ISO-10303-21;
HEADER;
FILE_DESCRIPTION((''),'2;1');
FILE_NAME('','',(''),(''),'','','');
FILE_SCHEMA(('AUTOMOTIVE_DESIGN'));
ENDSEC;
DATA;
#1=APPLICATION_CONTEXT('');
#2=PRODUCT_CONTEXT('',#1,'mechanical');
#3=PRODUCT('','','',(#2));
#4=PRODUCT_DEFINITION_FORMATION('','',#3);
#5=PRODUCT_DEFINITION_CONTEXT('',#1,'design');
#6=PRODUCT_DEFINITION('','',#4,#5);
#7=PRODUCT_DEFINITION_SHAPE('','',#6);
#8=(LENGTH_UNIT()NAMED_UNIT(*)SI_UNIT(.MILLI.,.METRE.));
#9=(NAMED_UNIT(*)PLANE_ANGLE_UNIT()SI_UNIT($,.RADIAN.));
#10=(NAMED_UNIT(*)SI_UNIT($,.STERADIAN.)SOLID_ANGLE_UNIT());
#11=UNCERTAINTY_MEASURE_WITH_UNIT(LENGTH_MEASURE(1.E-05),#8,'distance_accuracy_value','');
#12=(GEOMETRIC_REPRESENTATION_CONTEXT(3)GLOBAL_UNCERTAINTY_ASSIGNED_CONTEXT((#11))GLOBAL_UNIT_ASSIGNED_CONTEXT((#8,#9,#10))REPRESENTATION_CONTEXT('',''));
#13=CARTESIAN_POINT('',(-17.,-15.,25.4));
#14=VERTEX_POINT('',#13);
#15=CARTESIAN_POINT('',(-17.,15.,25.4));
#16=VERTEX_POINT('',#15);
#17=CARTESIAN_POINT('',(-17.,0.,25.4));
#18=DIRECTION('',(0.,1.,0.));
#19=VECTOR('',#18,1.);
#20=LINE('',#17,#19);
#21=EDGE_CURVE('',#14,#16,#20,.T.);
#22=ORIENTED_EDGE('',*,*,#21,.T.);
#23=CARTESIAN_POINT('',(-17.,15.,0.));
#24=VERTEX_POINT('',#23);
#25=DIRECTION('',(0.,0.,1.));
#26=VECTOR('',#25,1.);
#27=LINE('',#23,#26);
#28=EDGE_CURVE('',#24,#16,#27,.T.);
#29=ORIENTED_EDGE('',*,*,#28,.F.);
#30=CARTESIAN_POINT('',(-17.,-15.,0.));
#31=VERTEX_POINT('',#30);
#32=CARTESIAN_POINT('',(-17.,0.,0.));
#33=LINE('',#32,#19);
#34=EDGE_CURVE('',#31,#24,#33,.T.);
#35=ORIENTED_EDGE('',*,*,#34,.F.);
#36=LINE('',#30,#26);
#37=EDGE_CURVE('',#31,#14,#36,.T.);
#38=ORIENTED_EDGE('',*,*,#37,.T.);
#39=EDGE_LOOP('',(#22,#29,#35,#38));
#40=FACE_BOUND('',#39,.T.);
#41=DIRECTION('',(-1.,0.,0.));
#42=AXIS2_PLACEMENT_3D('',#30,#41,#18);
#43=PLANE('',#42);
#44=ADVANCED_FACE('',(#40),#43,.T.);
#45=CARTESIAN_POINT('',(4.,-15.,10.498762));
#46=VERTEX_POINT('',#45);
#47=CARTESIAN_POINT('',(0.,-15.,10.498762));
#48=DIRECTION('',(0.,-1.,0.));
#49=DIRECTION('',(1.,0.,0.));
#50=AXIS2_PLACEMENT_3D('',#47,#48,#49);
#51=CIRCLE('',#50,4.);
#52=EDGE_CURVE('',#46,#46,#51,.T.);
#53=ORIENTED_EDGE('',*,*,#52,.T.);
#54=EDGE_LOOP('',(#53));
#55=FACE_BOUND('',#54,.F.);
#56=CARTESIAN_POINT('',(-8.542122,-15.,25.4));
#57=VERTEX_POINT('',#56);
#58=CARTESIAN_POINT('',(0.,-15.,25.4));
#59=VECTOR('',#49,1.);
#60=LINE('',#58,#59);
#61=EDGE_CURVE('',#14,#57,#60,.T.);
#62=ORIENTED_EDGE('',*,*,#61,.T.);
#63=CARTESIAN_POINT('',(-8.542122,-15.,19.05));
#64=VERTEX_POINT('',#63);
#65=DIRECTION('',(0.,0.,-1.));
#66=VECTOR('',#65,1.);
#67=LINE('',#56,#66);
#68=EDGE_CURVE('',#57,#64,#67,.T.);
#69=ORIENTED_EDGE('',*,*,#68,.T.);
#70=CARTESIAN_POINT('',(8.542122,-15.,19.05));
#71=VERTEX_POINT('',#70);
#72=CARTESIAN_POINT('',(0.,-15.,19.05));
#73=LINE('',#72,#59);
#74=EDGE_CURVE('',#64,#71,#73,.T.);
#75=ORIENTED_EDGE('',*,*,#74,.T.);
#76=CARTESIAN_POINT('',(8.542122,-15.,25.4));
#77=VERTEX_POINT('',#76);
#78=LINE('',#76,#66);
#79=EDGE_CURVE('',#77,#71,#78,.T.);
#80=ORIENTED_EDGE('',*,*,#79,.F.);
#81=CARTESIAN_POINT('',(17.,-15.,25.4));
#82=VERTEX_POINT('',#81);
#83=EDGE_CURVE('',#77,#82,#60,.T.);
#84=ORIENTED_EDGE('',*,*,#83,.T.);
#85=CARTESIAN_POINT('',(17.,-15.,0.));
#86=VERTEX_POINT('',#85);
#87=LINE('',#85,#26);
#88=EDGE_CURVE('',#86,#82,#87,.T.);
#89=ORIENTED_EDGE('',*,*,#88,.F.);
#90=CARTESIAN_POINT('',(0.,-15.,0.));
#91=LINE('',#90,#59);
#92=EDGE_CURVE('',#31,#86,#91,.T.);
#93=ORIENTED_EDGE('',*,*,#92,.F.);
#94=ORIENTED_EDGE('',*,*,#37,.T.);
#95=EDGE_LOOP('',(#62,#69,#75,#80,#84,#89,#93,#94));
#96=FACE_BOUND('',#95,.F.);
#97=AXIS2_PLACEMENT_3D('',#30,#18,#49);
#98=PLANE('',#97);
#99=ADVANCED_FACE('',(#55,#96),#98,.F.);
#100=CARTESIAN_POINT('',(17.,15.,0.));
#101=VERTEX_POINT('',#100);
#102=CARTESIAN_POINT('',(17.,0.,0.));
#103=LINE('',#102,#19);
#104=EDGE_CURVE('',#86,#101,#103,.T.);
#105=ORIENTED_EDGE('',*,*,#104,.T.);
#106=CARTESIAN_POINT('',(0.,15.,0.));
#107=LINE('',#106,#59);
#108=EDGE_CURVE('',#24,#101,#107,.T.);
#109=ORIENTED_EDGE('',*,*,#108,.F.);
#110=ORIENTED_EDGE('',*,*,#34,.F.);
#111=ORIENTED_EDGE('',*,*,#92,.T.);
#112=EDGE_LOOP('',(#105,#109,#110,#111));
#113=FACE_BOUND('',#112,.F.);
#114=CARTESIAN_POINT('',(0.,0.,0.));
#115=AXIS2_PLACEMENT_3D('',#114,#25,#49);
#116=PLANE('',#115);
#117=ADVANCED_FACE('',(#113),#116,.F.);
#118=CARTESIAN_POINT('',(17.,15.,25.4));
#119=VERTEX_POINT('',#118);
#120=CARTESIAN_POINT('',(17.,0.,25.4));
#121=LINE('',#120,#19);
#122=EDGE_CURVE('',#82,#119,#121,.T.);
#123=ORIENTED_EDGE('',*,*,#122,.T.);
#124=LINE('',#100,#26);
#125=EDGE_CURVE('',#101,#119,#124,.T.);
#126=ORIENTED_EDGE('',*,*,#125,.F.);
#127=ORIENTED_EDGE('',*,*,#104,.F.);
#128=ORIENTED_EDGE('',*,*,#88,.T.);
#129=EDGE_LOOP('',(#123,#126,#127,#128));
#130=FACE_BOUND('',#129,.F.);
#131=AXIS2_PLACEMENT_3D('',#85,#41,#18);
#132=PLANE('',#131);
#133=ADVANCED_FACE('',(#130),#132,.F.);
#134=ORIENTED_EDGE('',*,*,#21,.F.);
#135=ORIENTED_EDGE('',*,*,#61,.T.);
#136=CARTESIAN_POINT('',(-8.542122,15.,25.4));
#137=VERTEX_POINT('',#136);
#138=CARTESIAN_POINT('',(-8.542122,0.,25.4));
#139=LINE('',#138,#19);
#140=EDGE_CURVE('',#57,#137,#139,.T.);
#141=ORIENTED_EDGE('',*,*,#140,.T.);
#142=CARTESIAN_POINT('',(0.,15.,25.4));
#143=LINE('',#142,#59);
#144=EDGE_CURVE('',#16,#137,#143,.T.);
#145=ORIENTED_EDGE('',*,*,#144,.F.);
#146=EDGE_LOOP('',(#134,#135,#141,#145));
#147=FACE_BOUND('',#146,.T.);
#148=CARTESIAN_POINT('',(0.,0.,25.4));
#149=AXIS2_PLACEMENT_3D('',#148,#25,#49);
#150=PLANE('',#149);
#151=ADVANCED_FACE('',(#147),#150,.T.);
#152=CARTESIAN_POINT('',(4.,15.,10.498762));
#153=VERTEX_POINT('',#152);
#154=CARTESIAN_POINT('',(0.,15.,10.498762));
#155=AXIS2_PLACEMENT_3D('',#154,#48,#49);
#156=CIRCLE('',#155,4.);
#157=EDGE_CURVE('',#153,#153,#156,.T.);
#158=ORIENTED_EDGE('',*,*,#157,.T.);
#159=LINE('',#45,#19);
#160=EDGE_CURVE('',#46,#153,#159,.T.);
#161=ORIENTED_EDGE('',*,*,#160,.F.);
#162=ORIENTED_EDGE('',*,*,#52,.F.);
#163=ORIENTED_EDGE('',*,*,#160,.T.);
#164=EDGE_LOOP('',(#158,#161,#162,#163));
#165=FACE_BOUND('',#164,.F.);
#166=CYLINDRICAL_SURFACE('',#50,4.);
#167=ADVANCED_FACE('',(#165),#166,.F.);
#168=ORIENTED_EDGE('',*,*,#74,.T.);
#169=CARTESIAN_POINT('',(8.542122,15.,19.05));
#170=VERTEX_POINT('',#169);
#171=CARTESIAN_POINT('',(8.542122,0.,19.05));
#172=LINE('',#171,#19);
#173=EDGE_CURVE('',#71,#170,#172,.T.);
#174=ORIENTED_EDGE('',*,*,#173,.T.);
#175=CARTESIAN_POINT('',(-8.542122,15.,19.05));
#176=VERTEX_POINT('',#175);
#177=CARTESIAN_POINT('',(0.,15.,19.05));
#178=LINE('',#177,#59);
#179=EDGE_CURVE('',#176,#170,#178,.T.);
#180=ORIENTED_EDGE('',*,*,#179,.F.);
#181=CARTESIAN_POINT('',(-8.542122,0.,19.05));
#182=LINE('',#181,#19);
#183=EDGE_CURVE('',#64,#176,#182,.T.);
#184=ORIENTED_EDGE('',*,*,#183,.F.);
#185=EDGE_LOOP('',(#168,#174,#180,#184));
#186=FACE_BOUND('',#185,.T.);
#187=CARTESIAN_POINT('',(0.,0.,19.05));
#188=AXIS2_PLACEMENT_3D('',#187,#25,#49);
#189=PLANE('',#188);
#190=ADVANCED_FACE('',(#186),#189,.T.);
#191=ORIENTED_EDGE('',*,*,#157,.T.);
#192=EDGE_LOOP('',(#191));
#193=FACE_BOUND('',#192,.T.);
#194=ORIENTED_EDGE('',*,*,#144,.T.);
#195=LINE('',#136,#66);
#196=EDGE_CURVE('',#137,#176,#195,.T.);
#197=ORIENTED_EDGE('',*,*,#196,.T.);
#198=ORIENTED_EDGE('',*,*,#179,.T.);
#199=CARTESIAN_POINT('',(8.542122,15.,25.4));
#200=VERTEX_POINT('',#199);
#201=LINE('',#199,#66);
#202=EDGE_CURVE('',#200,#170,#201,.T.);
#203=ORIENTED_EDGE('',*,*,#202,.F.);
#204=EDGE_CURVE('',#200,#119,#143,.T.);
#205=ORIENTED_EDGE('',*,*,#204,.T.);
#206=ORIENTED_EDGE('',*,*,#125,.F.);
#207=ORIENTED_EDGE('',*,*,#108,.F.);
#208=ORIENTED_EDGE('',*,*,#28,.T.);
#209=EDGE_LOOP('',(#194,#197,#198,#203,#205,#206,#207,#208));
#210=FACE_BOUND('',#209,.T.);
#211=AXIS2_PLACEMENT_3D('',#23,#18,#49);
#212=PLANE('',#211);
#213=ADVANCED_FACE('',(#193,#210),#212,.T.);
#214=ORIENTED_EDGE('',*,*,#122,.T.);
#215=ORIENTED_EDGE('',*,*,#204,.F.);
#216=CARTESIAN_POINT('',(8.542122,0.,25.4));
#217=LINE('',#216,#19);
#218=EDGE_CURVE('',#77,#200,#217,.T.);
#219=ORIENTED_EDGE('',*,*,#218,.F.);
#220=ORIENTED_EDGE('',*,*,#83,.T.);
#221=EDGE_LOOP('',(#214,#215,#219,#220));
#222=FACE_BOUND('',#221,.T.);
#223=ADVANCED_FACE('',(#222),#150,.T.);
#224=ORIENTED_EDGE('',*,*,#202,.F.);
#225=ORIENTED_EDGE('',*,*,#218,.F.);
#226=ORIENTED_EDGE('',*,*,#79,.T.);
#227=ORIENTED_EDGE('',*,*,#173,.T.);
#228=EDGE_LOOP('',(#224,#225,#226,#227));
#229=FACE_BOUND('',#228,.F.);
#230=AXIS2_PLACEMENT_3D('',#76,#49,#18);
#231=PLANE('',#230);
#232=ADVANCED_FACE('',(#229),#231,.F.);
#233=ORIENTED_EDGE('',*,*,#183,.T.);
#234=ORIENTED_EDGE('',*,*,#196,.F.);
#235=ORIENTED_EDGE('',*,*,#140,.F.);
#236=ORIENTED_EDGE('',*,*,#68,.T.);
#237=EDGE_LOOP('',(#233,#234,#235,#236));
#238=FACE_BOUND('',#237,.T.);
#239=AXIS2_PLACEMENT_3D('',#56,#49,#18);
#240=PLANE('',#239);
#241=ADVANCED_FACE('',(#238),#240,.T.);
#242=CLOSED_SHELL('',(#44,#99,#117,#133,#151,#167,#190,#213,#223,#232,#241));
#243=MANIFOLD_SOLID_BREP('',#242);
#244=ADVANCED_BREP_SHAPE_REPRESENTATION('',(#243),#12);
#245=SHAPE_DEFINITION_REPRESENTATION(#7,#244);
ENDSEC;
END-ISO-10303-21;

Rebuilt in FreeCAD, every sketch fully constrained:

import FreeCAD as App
import Part
import Sketcher
from FreeCAD import Vector


def add_polygon(sketch, points):
    """Adds a closed chain of lines whose ends are joined by coincident constraints."""
    first, n = sketch.GeometryCount, len(points)
    for a, b in zip(points, points[1:] + points[:1]):
        sketch.addGeometry(Part.LineSegment(App.Vector(*a, 0), App.Vector(*b, 0)), False)
    for i in range(n):
        sketch.addConstraint(Sketcher.Constraint("Coincident", first + i, 2, first + (i + 1) % n, 1))

doc = App.newDocument("Part")
body = doc.addObject("PartDesign::Body", "Body")

# Sketch on XY plane
sketch1 = body.newObject("Sketcher::SketchObject", "Sketch")
sketch1.AttachmentSupport = (doc.getObject("XY_Plane"), [""])
sketch1.MapMode = "FlatFace"
add_polygon(sketch1, [(-17, 15), (-17, -15), (17, -15), (17, 15)])  # lines 0-3
sketch1.addConstraint([
    Sketcher.Constraint("Vertical", 0),
    Sketcher.Constraint("Horizontal", 1),
    Sketcher.Constraint("Vertical", 2),
    Sketcher.Constraint("Horizontal", 3),
    Sketcher.Constraint("Symmetric", 0, 2, 2, 2, -1, 1),
    Sketcher.Constraint("DistanceX", 1, 1, 1, 2, 34.0),
    Sketcher.Constraint("DistanceY", 0, 2, 0, 1, 30.0),
])
pad1 = body.newObject("PartDesign::Pad", "Pad")
pad1.Profile = sketch1
pad1.Length = 25.4

# Sketch on XZ plane
sketch2 = body.newObject("Sketcher::SketchObject", "Sketch001")
sketch2.AttachmentSupport = (doc.getObject("XZ_Plane"), [""])
sketch2.MapMode = "FlatFace"
sketch2.AttachmentOffset = App.Placement(Vector(0, 0, 15), App.Rotation())
sketch2.addGeometry(Part.Circle(Vector(0, 10.5, 0), Vector(0, 0, 1), 4), False)
sketch2.addConstraint([
    Sketcher.Constraint("PointOnObject", 0, 3, -2),
    Sketcher.Constraint("Diameter", 0, 8.0),
    Sketcher.Constraint("DistanceY", -1, 1, 0, 3, 10.498762),
])
pocket1 = body.newObject("PartDesign::Pocket", "Pocket")
pocket1.Profile = sketch2
pocket1.Type = "ThroughAll"

# Sketch on XY plane
sketch3 = body.newObject("Sketcher::SketchObject", "Sketch002")
sketch3.AttachmentSupport = (doc.getObject("XY_Plane"), [""])
sketch3.MapMode = "FlatFace"
sketch3.AttachmentOffset = App.Placement(Vector(0, 0, 25.4), App.Rotation())
add_polygon(sketch3, [(-9, 15), (-9, -15), (9, -15), (9, 15)])  # lines 0-3
sketch3.addConstraint([
    Sketcher.Constraint("Vertical", 0),
    Sketcher.Constraint("Horizontal", 1),
    Sketcher.Constraint("Vertical", 2),
    Sketcher.Constraint("Horizontal", 3),
    Sketcher.Constraint("Symmetric", 0, 2, 2, 2, -1, 1),
    Sketcher.Constraint("DistanceY", 0, 2, 0, 1, 30.0),
    Sketcher.Constraint("DistanceX", 1, 1, 1, 2, 17.084244),
])
pocket2 = body.newObject("PartDesign::Pocket", "Pocket001")
pocket2.Profile = sketch3
pocket2.Length = 6.35

doc.recompute()
